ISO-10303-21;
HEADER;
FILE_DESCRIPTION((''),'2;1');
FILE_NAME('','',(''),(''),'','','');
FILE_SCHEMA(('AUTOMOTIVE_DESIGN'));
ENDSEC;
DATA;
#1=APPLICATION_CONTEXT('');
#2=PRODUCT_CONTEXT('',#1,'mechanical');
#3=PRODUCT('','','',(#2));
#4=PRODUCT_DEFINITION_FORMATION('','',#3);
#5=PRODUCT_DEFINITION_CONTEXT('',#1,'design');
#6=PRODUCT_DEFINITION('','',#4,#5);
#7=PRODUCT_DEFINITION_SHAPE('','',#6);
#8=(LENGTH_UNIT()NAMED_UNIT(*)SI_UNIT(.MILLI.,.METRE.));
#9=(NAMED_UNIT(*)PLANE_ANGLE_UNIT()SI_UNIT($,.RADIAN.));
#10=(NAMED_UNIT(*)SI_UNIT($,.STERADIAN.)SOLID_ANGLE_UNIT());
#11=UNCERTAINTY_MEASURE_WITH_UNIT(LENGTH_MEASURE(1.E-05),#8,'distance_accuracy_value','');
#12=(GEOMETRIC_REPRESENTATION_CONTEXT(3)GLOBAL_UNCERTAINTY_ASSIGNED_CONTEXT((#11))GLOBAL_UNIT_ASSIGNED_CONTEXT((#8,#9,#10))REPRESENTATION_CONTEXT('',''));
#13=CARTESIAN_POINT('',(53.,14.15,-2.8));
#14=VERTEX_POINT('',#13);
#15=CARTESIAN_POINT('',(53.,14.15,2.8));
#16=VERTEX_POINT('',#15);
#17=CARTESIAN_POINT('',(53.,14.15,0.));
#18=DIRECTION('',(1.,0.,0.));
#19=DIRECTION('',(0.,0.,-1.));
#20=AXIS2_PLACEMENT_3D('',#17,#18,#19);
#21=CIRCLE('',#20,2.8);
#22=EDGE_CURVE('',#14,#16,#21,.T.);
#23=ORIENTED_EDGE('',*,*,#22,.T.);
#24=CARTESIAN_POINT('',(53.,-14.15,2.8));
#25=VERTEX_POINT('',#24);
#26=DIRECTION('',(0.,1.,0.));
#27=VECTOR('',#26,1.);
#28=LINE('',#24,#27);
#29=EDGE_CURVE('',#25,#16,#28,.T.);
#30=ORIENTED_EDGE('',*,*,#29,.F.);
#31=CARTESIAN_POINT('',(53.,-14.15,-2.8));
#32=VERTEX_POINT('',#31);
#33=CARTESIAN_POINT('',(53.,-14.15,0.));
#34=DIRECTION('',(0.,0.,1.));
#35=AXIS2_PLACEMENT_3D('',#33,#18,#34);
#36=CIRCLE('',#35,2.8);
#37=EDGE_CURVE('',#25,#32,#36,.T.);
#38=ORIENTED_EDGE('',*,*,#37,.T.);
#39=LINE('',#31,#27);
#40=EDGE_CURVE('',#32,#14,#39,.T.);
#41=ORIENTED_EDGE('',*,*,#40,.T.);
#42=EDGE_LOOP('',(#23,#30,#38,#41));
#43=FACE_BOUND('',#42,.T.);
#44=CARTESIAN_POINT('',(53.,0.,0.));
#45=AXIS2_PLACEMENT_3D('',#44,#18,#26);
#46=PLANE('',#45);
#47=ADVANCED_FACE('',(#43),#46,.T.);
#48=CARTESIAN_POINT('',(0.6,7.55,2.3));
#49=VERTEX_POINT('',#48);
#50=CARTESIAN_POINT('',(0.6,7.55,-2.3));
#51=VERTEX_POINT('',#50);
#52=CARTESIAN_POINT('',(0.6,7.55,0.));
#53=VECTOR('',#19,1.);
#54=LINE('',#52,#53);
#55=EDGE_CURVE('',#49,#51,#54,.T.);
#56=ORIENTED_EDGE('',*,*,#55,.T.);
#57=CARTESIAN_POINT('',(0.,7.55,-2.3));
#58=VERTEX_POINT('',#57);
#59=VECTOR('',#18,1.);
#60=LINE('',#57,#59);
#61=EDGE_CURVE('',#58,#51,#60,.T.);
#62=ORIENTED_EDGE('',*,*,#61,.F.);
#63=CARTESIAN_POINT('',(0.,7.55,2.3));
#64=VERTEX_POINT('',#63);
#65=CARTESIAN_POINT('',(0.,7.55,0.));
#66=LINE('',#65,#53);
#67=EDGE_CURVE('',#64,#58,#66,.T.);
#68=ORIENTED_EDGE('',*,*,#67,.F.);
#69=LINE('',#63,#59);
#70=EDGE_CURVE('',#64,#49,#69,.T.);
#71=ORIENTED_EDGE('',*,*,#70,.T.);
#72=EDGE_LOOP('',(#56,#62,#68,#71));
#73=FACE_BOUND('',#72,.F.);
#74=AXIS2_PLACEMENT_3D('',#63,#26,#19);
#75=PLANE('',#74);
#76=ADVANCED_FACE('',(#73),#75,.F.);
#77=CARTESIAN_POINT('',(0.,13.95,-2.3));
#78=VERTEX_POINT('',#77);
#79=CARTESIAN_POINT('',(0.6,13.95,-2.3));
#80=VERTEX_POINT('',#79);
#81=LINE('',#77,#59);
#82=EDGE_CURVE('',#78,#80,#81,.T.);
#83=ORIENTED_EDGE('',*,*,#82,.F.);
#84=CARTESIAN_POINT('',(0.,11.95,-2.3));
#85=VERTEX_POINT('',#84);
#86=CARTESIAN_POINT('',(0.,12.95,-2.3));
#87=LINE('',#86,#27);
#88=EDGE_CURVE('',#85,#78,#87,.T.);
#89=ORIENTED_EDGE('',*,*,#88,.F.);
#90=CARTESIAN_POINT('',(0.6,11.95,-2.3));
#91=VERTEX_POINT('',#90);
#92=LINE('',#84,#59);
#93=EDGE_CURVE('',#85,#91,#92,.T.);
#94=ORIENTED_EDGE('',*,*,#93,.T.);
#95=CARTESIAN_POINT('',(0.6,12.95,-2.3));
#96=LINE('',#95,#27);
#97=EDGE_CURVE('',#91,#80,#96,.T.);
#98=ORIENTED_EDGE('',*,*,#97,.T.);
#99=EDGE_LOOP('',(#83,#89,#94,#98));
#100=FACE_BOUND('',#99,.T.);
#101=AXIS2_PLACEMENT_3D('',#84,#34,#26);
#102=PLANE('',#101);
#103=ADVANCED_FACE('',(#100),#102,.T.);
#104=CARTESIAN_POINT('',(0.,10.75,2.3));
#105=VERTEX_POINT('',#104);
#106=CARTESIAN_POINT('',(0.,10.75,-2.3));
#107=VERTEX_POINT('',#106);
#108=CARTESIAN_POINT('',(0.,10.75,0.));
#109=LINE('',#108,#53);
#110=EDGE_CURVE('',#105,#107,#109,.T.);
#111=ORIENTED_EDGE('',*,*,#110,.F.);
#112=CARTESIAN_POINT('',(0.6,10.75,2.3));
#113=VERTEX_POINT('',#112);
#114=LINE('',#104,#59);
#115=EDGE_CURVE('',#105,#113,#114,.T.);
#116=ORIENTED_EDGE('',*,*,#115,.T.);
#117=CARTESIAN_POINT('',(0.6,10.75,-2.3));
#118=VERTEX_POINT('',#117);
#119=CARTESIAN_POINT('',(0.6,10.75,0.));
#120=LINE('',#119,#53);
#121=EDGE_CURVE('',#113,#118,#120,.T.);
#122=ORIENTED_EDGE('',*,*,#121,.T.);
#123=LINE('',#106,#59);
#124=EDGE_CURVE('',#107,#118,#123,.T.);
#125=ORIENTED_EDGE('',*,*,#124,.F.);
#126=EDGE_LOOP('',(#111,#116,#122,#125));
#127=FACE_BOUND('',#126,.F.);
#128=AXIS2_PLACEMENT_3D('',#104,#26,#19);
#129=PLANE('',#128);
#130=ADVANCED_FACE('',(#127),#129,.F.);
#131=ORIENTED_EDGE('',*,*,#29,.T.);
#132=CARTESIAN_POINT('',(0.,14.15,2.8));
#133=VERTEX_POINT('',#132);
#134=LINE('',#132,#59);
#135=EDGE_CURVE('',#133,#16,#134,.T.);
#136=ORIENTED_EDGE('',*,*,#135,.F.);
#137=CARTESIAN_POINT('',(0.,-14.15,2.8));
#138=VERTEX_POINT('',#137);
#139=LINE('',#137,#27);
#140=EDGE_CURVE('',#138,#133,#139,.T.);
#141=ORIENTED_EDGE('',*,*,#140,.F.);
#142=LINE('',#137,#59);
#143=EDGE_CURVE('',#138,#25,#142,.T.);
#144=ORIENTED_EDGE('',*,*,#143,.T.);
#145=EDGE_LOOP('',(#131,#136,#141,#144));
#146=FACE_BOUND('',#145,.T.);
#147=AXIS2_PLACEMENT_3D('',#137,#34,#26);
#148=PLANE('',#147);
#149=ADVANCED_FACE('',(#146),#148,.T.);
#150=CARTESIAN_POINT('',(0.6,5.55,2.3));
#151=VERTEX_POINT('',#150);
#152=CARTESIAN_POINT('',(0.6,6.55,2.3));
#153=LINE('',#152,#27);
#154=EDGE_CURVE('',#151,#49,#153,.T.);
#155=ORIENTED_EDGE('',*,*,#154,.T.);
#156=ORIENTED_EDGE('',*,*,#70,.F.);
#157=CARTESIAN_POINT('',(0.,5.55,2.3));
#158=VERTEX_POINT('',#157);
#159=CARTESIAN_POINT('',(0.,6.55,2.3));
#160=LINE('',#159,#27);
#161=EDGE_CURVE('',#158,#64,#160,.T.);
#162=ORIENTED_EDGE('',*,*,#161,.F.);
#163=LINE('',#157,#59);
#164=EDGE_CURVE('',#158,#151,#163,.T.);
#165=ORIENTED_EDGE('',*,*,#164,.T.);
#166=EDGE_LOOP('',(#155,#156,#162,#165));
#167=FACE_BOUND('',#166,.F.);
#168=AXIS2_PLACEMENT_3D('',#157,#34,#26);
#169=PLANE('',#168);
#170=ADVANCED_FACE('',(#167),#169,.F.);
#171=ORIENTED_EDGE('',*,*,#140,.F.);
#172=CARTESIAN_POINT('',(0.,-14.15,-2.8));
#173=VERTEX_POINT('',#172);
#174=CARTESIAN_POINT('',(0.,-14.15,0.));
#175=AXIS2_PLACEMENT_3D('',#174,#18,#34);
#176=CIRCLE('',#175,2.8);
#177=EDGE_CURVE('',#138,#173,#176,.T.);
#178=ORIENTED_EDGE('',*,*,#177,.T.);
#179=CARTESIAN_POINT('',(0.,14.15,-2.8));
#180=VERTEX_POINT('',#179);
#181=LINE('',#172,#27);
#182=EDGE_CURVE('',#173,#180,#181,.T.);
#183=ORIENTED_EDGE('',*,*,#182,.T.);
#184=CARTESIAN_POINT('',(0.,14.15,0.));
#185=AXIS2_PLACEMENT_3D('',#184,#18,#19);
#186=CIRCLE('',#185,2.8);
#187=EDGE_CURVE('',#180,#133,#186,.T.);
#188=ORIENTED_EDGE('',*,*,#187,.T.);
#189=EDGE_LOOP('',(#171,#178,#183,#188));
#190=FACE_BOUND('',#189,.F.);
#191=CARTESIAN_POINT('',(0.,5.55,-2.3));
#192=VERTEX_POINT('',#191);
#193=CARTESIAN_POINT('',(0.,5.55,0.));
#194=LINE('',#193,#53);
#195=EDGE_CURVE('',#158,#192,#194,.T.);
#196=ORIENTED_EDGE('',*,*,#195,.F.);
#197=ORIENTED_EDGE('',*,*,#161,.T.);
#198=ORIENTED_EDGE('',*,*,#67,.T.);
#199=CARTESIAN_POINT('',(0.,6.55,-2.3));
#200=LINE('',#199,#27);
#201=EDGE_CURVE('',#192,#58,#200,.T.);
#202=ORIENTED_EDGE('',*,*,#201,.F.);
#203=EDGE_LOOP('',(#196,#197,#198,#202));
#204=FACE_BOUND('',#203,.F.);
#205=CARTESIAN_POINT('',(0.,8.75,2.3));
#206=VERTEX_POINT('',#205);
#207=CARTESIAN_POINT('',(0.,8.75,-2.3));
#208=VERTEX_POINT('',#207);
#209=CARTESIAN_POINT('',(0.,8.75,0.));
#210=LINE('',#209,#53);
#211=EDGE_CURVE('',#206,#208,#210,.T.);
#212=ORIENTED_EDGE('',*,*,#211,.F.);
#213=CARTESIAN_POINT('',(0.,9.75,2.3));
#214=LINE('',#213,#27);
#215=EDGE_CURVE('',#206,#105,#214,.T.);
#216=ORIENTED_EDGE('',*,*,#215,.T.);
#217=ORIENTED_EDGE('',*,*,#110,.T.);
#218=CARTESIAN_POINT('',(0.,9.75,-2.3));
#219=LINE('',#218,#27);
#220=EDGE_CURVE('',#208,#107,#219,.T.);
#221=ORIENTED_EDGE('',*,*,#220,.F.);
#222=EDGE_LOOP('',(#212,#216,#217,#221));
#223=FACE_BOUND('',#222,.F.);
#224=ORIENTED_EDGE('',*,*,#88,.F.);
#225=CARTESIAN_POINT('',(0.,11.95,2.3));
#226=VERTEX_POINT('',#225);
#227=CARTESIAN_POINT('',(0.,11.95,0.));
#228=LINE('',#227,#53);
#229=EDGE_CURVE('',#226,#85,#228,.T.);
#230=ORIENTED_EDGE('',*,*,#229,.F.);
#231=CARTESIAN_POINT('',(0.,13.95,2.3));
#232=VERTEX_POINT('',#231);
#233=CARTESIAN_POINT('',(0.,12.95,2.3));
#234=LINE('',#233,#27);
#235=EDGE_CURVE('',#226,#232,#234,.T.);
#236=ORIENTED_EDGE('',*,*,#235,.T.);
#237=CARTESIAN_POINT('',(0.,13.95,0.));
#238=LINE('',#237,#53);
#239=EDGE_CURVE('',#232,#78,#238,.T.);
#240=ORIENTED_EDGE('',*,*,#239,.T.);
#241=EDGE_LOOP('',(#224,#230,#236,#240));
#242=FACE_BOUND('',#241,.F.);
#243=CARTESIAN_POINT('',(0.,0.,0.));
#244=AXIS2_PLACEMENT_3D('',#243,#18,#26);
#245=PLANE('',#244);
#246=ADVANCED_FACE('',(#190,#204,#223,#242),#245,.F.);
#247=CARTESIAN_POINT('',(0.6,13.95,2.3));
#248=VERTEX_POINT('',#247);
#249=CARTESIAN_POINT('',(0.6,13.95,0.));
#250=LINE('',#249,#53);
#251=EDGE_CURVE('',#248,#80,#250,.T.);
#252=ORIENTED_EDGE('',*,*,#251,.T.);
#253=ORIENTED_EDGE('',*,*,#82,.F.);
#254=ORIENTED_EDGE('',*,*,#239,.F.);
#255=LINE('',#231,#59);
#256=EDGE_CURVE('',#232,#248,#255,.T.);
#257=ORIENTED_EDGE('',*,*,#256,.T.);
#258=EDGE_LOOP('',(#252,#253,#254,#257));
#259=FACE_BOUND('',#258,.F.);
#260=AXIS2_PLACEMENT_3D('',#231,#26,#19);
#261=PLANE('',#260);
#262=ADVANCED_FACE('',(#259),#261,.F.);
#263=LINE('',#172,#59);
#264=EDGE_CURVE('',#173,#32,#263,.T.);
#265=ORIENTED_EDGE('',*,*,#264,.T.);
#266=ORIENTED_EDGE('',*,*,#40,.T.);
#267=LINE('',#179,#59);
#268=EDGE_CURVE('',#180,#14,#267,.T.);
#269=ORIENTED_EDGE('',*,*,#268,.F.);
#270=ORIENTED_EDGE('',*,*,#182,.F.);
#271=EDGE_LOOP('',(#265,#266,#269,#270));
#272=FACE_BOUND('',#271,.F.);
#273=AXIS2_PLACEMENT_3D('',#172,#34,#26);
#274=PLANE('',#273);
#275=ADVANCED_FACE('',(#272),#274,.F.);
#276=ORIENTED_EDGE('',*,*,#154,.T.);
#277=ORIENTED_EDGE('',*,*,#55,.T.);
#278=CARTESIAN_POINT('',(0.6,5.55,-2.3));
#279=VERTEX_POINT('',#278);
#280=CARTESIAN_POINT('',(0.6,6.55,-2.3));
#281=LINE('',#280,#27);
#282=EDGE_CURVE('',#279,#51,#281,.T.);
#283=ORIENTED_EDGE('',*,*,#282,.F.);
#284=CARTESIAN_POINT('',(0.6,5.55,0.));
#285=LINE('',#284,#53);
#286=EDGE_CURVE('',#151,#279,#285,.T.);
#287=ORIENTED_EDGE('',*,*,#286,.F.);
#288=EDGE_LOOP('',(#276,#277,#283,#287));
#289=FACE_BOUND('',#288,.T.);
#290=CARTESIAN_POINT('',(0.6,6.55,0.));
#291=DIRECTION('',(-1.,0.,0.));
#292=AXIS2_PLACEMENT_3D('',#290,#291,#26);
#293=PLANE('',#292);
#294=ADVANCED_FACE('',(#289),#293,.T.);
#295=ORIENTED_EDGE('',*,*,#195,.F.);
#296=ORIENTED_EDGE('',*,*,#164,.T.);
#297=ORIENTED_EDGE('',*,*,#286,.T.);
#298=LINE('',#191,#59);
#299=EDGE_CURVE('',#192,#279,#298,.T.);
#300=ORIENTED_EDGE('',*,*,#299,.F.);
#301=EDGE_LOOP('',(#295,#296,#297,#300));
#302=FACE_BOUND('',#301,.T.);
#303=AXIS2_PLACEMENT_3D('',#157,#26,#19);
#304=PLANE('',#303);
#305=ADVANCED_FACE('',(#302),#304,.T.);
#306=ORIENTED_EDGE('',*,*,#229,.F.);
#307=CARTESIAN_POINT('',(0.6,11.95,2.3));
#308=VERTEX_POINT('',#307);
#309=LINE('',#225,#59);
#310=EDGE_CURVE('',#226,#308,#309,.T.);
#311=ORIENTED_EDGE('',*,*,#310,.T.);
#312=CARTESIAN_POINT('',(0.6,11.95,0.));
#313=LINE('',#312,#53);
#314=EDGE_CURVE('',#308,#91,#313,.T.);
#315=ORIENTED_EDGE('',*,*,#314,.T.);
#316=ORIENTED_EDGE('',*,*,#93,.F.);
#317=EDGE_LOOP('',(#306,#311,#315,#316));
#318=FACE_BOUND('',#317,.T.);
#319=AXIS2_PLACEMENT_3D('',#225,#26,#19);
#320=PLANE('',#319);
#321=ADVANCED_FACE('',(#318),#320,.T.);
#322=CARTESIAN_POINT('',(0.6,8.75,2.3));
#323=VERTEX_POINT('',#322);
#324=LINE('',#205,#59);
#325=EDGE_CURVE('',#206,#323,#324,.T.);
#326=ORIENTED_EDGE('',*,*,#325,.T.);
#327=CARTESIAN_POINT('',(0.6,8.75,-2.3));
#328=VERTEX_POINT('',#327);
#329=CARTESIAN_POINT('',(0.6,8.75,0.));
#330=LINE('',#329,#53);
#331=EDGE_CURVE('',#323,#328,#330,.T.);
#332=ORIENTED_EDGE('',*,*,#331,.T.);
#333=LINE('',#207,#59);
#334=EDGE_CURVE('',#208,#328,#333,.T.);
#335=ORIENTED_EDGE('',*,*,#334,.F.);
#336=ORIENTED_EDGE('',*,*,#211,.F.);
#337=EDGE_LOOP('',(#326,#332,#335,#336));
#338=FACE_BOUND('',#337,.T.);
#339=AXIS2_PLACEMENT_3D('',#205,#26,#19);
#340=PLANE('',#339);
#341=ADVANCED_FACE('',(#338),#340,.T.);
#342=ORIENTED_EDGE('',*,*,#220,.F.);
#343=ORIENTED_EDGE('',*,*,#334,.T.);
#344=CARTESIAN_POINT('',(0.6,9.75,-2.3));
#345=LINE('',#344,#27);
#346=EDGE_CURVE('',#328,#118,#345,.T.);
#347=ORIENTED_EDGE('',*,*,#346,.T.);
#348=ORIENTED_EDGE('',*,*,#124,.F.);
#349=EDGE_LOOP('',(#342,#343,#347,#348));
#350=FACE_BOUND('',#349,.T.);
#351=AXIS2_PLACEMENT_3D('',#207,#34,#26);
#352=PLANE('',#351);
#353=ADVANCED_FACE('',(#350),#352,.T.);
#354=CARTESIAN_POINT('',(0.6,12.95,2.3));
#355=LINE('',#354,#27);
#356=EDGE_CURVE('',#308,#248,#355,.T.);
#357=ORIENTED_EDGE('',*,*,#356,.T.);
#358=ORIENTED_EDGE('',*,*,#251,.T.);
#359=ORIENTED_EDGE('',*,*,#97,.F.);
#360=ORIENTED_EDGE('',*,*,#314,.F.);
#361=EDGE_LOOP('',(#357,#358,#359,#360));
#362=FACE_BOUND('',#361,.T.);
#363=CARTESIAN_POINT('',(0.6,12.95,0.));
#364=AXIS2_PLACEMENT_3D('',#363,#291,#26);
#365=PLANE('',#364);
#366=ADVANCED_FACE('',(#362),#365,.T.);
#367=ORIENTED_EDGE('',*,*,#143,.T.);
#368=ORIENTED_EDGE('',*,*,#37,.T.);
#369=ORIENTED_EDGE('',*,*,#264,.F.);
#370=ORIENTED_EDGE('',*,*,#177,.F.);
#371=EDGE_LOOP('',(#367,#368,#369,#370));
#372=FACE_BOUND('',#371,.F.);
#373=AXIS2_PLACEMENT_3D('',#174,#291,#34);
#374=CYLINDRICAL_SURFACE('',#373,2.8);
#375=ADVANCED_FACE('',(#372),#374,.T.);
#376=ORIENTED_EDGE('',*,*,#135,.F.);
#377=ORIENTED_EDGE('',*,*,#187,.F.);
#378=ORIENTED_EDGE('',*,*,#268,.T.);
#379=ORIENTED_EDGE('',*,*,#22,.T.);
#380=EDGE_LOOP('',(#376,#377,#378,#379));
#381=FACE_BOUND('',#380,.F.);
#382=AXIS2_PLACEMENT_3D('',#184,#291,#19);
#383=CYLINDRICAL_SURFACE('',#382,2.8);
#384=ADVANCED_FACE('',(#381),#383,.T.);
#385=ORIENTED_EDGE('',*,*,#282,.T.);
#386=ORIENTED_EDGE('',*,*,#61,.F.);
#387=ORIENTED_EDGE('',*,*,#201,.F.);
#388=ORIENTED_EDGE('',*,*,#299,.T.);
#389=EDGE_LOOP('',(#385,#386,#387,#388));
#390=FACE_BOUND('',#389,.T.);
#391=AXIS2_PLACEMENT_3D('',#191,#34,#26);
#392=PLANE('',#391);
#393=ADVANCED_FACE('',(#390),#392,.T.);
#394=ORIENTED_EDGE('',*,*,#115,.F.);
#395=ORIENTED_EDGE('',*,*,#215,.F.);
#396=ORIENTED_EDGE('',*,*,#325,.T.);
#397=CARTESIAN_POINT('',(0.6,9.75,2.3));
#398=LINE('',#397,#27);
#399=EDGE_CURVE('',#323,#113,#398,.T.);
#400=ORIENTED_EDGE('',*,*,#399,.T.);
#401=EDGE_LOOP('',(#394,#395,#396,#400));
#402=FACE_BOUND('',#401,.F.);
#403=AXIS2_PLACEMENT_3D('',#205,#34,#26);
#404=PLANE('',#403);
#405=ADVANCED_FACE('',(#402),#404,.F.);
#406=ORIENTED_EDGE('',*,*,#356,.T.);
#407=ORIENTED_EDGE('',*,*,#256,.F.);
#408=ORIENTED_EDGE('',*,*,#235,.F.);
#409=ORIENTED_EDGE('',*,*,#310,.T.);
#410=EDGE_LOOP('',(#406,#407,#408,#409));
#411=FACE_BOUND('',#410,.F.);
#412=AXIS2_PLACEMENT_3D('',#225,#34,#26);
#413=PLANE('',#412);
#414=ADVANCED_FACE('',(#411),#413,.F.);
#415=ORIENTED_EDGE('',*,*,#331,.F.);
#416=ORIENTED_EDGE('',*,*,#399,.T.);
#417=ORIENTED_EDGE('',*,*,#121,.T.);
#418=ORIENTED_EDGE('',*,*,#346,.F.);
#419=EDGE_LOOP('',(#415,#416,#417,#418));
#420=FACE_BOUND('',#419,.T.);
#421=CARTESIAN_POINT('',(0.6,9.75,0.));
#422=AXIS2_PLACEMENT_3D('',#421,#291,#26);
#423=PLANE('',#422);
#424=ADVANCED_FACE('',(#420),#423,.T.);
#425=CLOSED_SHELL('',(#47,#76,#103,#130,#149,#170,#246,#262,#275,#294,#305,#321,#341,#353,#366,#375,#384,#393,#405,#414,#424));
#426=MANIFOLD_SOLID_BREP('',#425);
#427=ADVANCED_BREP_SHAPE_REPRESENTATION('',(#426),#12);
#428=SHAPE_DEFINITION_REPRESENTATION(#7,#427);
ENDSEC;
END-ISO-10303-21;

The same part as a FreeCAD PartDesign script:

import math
import FreeCAD as App
import Part
import Sketcher

V = App.Vector
Q = App.Units.Quantity


def add_polygon(sketch, points):
    """Adds a closed chain of lines whose ends are joined by coincident constraints."""
    first, n = sketch.GeometryCount, len(points)
    for a, b in zip(points, points[1:] + points[:1]):
        sketch.addGeometry(Part.LineSegment(App.Vector(*a, 0), App.Vector(*b, 0)), False)
    for i in range(n):
        sketch.addConstraint(Sketcher.Constraint("Coincident", first + i, 2, first + (i + 1) % n, 1))

doc = App.newDocument("Part")
body = doc.addObject("PartDesign::Body", "Body")

# Sketch on YZ plane
sketch1 = body.newObject("Sketcher::SketchObject", "Sketch")
sketch1.AttachmentSupport = (doc.getObject("YZ_Plane"), [""])
sketch1.MapMode = "FlatFace"
sketch1.addGeometry([
    Part.ArcOfCircle(Part.Circle(V(-14.2, 0, 0), V(0, 0, 1), 2.8), math.radians(90), math.radians(270)),
    Part.LineSegment(V(-14.2, -2.8, 0), V(14.2, -2.8, 0)),
    Part.ArcOfCircle(Part.Circle(V(14.2, 0, 0), V(0, 0, 1), 2.8), math.radians(-90), math.radians(90)),
    Part.LineSegment(V(14.2, 2.8, 0), V(-14.2, 2.8, 0)),
], False)
sketch1.addConstraint([
    Sketcher.Constraint("Tangent", 0, 2, 1, 1),
    Sketcher.Constraint("Tangent", 1, 2, 2, 1),
    Sketcher.Constraint("Tangent", 2, 2, 3, 1),
    Sketcher.Constraint("Tangent", 3, 2, 0, 1),
    Sketcher.Constraint("Horizontal", 1),
    Sketcher.Constraint("Horizontal", 3),
    Sketcher.Constraint("Symmetric", 0, 3, 2, 3, -1, 1),
    Sketcher.Constraint("Radius", 0, Q("2.8 mm")),
    Sketcher.Constraint("DistanceX", 1, 1, 1, 2, Q("28.3 mm")),
])
pad1 = body.newObject("PartDesign::Pad", "Pad")
pad1.Profile = sketch1
pad1.Length = 53

# Sketch on YZ plane
sketch2 = body.newObject("Sketcher::SketchObject", "Sketch001")
sketch2.AttachmentSupport = (doc.getObject("YZ_Plane"), [""])
sketch2.MapMode = "FlatFace"
add_polygon(sketch2, [(11.9, -2.3), (11.9, 2.3), (13.9, 2.3), (13.9, -2.3)])  # lines 0-3
add_polygon(sketch2, [(8.8, -2.3), (8.8, 2.3), (10.8, 2.3), (10.8, -2.3)])  # lines 4-7
add_polygon(sketch2, [(5.5, -2.3), (5.5, 2.3), (7.5, 2.3), (7.5, -2.3)])  # lines 8-11
sketch2.addConstraint([
    Sketcher.Constraint("Vertical", 0),
    Sketcher.Constraint("Horizontal", 1),
    Sketcher.Constraint("Vertical", 2),
    Sketcher.Constraint("Horizontal", 3),
    Sketcher.Constraint("Vertical", 4),
    Sketcher.Constraint("Horizontal", 5),
    Sketcher.Constraint("Vertical", 6),
    Sketcher.Constraint("Horizontal", 7),
    Sketcher.Constraint("Vertical", 8),
    Sketcher.Constraint("Horizontal", 9),
    Sketcher.Constraint("Vertical", 10),
    Sketcher.Constraint("Horizontal", 11),
    Sketcher.Constraint("Horizontal", 1, 2, 4, 2),
    Sketcher.Constraint("Horizontal", 3, 2, 6, 2),
    Sketcher.Constraint("Horizontal", 5, 2, 8, 2),
    Sketcher.Constraint("Horizontal", 7, 2, 10, 2),
    Sketcher.Constraint("Equal", 3, 5),
    Sketcher.Constraint("Equal", 7, 9),
    Sketcher.Constraint("DistanceX", 1, 1, 1, 2, Q("2 mm")),
    Sketcher.Constraint("DistanceY", 0, 1, 0, 2, Q("4.6 mm")),
    Sketcher.Constraint("DistanceY", -1, 1, 0, 2, Q("2.3 mm")),
    Sketcher.Constraint("DistanceX", 4, 2, 0, 2, Q("3.2 mm")),
    Sketcher.Constraint("DistanceX", 8, 2, 4, 2, Q("3.2 mm")),
    Sketcher.Constraint("DistanceX", -1, 1, 0, 2, Q("11.95 mm")),
])
pocket1 = body.newObject("PartDesign::Pocket", "Pocket")
pocket1.Profile = sketch2
pocket1.Length = 0.6
pocket1.Reversed = True

doc.recompute()
